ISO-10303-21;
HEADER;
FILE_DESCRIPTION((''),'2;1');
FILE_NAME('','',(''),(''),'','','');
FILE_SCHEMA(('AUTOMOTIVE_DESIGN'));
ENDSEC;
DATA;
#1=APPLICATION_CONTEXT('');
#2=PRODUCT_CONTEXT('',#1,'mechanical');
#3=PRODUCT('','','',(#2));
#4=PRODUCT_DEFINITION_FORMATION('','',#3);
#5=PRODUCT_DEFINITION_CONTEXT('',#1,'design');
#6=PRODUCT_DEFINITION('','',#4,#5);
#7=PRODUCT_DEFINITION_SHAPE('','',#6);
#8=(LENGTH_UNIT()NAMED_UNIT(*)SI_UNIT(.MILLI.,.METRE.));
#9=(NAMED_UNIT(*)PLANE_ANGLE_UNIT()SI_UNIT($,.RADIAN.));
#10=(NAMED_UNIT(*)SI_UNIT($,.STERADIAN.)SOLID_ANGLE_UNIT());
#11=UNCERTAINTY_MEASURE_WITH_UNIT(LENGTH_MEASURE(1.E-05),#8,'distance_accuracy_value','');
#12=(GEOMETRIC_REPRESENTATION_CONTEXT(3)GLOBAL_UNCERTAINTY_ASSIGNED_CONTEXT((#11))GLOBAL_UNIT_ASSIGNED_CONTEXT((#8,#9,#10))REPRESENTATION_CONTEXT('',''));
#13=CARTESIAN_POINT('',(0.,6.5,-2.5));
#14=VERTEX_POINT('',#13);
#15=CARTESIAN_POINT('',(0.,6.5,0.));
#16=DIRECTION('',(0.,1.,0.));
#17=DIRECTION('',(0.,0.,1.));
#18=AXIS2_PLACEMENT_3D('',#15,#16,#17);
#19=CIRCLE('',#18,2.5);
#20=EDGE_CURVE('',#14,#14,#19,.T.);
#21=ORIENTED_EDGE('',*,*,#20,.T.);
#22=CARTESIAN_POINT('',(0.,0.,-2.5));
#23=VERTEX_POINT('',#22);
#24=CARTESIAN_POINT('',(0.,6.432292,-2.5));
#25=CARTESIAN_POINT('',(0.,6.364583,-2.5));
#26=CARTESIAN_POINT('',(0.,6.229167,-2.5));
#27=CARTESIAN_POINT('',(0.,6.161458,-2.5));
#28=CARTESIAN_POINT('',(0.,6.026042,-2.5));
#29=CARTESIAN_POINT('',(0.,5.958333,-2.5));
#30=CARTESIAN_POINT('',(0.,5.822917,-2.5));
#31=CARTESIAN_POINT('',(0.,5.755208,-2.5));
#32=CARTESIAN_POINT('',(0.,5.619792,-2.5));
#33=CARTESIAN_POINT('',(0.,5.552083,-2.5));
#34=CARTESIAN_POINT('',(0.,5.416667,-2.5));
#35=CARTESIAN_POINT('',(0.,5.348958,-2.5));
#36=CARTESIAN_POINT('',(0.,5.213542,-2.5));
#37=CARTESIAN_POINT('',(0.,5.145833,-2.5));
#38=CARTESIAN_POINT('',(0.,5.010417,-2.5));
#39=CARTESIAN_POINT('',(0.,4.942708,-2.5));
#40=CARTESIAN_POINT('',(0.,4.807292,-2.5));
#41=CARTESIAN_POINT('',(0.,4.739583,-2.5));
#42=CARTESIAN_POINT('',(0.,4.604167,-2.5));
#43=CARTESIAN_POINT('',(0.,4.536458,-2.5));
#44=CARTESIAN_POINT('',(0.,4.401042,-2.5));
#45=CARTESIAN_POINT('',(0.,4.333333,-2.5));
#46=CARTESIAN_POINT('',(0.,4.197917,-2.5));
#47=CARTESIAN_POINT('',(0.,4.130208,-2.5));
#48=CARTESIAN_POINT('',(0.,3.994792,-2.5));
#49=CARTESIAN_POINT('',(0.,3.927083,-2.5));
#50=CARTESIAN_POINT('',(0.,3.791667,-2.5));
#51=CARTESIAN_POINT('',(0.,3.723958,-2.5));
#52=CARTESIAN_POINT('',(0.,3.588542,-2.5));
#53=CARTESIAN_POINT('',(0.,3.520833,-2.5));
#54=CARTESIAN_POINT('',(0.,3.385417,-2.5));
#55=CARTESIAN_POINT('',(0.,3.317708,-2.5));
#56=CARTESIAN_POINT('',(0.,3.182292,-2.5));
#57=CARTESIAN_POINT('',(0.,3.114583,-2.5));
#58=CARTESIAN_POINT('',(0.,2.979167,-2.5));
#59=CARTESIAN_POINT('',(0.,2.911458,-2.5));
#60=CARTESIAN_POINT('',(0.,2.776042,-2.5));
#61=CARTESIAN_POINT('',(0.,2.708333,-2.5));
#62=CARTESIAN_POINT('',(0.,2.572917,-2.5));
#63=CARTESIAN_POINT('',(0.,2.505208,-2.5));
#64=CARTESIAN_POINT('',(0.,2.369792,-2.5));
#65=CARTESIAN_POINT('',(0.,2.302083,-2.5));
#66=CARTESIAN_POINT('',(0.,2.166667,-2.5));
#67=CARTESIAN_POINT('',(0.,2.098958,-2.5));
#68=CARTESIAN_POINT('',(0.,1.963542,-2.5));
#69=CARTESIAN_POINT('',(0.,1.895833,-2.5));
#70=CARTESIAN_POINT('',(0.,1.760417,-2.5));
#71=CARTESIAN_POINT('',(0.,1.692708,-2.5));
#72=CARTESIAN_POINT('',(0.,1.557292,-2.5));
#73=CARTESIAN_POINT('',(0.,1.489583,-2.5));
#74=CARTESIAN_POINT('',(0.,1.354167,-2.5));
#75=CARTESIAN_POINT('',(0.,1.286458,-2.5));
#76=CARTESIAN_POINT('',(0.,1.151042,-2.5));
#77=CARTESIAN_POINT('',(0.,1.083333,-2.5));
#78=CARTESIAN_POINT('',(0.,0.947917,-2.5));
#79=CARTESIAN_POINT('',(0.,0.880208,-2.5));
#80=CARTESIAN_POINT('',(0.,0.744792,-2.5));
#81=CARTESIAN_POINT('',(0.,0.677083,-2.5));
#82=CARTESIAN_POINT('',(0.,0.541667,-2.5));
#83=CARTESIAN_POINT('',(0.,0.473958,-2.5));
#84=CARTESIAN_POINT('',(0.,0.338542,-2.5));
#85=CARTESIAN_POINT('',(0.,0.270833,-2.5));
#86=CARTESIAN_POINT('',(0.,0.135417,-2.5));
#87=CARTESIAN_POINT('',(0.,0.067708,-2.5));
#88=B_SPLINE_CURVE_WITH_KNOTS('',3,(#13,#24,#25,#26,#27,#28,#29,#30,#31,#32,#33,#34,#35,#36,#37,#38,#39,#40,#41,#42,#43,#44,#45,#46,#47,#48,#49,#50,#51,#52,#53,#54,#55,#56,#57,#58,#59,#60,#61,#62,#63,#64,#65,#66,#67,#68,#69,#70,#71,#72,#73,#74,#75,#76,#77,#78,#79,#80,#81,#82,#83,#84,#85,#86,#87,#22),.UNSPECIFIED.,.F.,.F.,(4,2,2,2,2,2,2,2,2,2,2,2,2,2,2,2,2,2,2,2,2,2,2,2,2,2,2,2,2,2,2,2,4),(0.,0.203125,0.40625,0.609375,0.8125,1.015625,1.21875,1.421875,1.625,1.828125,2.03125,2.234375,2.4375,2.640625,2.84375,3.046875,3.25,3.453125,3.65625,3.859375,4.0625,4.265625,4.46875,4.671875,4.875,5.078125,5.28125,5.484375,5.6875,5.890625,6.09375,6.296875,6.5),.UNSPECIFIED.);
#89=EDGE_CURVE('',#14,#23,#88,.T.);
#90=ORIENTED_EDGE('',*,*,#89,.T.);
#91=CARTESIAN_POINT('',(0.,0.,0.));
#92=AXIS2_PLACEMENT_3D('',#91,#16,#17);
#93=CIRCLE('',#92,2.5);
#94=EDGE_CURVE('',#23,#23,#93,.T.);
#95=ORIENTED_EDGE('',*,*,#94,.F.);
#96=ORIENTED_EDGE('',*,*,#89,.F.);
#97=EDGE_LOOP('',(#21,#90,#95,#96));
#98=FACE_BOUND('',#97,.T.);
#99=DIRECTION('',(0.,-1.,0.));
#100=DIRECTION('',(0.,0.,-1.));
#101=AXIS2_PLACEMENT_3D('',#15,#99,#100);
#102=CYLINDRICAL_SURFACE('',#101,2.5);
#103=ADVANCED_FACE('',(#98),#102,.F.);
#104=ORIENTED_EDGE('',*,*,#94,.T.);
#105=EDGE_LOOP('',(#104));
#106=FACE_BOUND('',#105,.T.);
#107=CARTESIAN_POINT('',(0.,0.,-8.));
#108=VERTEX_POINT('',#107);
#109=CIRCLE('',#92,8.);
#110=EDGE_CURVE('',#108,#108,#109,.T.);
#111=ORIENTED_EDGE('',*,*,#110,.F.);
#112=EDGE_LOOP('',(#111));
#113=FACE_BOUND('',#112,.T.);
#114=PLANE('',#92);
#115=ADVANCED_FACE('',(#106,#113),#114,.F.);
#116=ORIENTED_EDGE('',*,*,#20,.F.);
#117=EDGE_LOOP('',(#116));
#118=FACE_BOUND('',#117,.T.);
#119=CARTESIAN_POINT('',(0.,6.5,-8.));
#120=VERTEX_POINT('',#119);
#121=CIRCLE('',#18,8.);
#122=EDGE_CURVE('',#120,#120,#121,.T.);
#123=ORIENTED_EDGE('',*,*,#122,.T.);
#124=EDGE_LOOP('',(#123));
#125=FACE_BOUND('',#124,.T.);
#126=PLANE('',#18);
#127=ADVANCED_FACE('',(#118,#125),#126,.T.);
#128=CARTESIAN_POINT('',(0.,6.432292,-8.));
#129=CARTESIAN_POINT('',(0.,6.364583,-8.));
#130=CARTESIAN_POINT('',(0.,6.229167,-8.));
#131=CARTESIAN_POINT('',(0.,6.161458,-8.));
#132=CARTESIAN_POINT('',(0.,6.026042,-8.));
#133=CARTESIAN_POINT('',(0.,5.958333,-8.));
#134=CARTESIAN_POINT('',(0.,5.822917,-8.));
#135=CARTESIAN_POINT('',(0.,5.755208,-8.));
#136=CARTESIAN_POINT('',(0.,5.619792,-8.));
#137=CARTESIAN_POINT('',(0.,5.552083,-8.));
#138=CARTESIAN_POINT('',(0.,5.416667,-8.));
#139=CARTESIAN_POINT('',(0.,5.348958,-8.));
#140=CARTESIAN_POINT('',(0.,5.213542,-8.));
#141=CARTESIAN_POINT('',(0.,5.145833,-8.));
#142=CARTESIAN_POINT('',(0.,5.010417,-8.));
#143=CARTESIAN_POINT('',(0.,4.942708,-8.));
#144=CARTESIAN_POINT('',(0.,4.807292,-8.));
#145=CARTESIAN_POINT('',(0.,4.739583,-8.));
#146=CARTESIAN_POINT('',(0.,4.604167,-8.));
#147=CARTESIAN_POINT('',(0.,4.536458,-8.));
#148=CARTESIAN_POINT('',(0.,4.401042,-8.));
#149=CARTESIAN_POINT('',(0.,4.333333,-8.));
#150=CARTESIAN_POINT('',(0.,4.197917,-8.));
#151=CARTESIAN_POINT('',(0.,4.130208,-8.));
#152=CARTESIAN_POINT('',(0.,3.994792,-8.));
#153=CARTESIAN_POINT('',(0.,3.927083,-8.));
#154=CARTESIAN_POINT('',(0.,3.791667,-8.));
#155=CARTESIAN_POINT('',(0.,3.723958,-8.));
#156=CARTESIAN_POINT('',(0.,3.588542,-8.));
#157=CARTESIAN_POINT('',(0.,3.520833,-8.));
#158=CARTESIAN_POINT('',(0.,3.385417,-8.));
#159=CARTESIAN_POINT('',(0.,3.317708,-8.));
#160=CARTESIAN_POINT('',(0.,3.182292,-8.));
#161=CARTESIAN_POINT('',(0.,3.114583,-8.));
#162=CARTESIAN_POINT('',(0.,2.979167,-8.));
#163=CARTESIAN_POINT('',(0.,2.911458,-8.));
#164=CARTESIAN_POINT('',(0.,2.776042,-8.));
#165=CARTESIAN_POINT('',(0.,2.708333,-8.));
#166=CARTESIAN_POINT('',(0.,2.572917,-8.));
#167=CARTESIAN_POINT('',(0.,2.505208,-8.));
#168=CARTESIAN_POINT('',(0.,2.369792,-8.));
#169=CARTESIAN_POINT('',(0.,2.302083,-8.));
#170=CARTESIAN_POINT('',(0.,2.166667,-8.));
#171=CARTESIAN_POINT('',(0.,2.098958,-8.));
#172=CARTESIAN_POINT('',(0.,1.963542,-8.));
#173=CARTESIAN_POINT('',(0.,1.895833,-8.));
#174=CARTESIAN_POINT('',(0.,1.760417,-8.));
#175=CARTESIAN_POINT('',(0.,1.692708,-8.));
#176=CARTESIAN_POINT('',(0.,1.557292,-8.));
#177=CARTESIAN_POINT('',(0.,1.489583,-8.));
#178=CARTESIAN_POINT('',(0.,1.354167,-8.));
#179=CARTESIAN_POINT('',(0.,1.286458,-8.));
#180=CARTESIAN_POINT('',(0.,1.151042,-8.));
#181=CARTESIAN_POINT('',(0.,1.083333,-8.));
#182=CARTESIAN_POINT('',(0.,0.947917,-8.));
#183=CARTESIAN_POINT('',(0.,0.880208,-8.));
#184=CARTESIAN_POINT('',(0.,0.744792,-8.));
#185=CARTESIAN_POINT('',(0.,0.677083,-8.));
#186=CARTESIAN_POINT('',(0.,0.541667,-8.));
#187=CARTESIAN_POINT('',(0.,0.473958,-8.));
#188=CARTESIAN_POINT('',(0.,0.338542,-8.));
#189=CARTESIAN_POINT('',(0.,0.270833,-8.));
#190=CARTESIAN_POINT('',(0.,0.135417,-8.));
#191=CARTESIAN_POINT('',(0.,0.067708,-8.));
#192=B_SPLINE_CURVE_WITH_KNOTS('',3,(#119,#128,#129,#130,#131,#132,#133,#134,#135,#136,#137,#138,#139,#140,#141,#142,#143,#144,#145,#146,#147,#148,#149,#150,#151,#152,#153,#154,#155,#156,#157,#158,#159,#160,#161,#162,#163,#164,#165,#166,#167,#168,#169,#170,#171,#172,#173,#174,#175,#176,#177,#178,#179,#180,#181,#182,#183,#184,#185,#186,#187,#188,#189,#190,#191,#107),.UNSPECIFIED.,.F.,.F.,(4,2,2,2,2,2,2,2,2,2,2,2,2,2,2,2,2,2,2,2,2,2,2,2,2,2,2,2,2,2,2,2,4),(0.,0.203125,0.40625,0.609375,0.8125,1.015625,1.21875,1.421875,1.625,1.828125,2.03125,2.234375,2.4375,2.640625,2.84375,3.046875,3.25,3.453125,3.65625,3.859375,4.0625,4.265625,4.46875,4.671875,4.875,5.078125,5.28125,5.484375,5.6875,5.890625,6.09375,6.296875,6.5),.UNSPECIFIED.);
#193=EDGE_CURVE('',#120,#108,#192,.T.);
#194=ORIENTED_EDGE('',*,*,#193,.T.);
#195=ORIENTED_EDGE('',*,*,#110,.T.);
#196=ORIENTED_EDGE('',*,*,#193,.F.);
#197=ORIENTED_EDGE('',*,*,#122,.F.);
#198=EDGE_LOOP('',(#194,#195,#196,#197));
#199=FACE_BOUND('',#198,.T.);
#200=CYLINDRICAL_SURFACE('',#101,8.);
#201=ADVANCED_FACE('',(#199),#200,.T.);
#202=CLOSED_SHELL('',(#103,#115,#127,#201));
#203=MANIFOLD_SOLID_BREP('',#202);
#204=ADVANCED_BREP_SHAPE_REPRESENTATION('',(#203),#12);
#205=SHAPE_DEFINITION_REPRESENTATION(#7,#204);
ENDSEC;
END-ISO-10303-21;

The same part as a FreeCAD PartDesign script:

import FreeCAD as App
import Part
import Sketcher

doc = App.newDocument("Part")
params = doc.addObject("Spreadsheet::Sheet", "Params")
for row, (alias, value) in enumerate([
    ("sketch1_diameter", "16 mm"),
    ("sketch1_diameter2", "5 mm"),
    ("pad1_length", "6.5 mm"),
], start=1):
    params.set(f"A{row}", alias)
    params.set(f"B{row}", "=" + value)
    params.setAlias(f"B{row}", alias)

body = doc.addObject("PartDesign::Body", "Body")

# Sketch on XZ plane
sketch1 = body.newObject("Sketcher::SketchObject", "Sketch")
sketch1.AttachmentSupport = (doc.getObject("XZ_Plane"), [""])
sketch1.MapMode = "FlatFace"
sketch1.addGeometry([
    Part.Circle(App.Vector(0, 0, 0), App.Vector(0, 0, 1), 8),
    Part.Circle(App.Vector(0, 0, 0), App.Vector(0, 0, 1), 2.5),
], False)
sketch1.addConstraint([
    Sketcher.Constraint("Coincident", 0, 3, -1, 1),
    Sketcher.Constraint("Coincident", 1, 3, -1, 1),
    Sketcher.Constraint("Diameter", 0, 16.0),
    Sketcher.Constraint("Diameter", 1, 5.0),
])
sketch1.setExpression("Constraints[2]", "Params.sketch1_diameter")
sketch1.setExpression("Constraints[3]", "Params.sketch1_diameter2")
pad1 = body.newObject("PartDesign::Pad", "Pad")
pad1.Profile = sketch1
pad1.setExpression("Length", "Params.pad1_length")
pad1.Reversed = True

doc.recompute()
